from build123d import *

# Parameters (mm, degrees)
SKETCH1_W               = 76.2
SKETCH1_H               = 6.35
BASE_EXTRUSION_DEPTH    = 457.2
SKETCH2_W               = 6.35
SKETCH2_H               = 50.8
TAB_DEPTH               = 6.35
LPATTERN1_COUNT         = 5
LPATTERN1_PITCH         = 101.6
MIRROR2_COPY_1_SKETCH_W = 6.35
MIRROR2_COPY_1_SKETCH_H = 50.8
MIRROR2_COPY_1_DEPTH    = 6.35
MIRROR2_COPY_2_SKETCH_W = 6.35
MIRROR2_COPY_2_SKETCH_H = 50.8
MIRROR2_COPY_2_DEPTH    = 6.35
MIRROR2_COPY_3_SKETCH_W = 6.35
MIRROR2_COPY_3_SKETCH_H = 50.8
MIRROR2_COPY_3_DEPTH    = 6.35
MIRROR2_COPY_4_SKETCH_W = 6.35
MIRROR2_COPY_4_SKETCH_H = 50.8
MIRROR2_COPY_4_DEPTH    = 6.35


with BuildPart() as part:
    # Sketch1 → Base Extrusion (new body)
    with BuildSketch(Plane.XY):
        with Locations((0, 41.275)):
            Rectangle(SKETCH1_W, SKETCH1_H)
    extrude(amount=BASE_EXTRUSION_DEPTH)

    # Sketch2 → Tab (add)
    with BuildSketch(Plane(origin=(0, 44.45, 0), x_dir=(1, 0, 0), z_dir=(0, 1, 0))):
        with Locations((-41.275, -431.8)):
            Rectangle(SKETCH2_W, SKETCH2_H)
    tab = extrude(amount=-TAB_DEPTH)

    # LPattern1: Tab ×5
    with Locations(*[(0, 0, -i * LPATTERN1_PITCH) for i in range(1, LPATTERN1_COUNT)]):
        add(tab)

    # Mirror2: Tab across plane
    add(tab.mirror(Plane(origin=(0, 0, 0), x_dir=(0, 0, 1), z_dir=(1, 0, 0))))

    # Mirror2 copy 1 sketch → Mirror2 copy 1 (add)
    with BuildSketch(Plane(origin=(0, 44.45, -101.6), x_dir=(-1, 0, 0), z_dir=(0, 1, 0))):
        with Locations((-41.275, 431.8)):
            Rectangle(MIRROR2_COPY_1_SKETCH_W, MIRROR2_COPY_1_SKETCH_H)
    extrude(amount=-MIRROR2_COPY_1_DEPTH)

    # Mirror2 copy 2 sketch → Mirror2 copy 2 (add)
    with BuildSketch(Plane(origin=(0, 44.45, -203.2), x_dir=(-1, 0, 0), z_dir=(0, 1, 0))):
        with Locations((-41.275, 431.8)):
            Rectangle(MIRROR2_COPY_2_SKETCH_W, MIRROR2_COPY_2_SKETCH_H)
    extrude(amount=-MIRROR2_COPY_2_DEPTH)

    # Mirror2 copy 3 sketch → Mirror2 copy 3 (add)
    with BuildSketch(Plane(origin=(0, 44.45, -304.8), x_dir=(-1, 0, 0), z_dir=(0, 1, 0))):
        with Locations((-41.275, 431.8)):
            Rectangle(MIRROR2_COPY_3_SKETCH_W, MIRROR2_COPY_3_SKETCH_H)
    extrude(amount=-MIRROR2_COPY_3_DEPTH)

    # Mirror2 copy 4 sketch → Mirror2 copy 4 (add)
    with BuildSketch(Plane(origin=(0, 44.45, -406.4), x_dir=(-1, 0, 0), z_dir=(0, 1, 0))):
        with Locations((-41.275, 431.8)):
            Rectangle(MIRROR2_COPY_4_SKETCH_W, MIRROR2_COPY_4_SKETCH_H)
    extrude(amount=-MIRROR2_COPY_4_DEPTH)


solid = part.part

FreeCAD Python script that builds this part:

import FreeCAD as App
import Part
import Sketcher

V = App.Vector
Q = App.Units.Quantity


def add_polygon(sketch, points):
    """Adds a closed chain of lines whose ends are joined by coincident constraints."""
    first, n = sketch.GeometryCount, len(points)
    for a, b in zip(points, points[1:] + points[:1]):
        sketch.addGeometry(Part.LineSegment(App.Vector(*a, 0), App.Vector(*b, 0)), False)
    for i in range(n):
        sketch.addConstraint(Sketcher.Constraint("Coincident", first + i, 2, first + (i + 1) % n, 1))

doc = App.newDocument("Part")
body = doc.addObject("PartDesign::Body", "Body")

# Sketch on XY plane
sketch1 = body.newObject("Sketcher::SketchObject", "Sketch")
sketch1.AttachmentSupport = (doc.getObject("XY_Plane"), [""])
sketch1.MapMode = "FlatFace"
add_polygon(sketch1, [(-38, 44), (-38, 38), (38, 38), (38, 44)])  # lines 0-3
sketch1.addConstraint(Sketcher.Constraint("Vertical", 0))
sketch1.addConstraint(Sketcher.Constraint("Horizontal", 1))
sketch1.addConstraint(Sketcher.Constraint("Vertical", 2))
sketch1.addConstraint(Sketcher.Constraint("Horizontal", 3))
sketch1.addConstraint(Sketcher.Constraint("DistanceX", 1, 1, 1, 2, Q("3 in")))
sketch1.addConstraint(Sketcher.Constraint("DistanceY", 0, 2, 0, 1, Q("0.25 in")))
sketch1.addConstraint(Sketcher.Constraint("DistanceX", 0, 2, -1, 1, Q("1.5 in")))
sketch1.addConstraint(Sketcher.Constraint("DistanceY", -1, 1, 0, 2, Q("1.5 in")))
pad1 = body.newObject("PartDesign::Pad", "Pad")
pad1.Profile = sketch1
pad1.Length = Q("18 in")

# Sketch on XZ plane
sketch2 = body.newObject("Sketcher::SketchObject", "Sketch001")
sketch2.AttachmentSupport = (doc.getObject("XZ_Plane"), [""])
sketch2.MapMode = "FlatFace"
sketch2.AttachmentOffset = App.Placement(V(0, 0, -1.75 * 25.4), App.Rotation())
add_polygon(sketch2, [(-44, 406), (-44, 457), (-38, 457), (-38, 406)])  # lines 0-3
sketch2.addConstraint(Sketcher.Constraint("Vertical", 0))
sketch2.addConstraint(Sketcher.Constraint("Horizontal", 1))
sketch2.addConstraint(Sketcher.Constraint("Vertical", 2))
sketch2.addConstraint(Sketcher.Constraint("Horizontal", 3))
sketch2.addConstraint(Sketcher.Constraint("DistanceY", 0, 1, 0, 2, Q("2 in")))
sketch2.addConstraint(Sketcher.Constraint("DistanceY", -1, 1, 0, 2, Q("18 in")))
sketch2.addConstraint(Sketcher.Constraint("DistanceX", 1, 1, 1, 2, Q("0.25 in")))
sketch2.addConstraint(Sketcher.Constraint("DistanceX", 1, 2, -1, 1, Q("1.5 in")))
pad2 = body.newObject("PartDesign::Pad", "Pad001")
pad2.Profile = sketch2
pad2.Length = Q("0.25 in")
doc.recompute()

linearpattern = body.newObject("PartDesign::LinearPattern", "LinearPattern")
linearpattern.Originals = [pad2]
linearpattern.Direction = (doc.getObject("Z_Axis"), [""])
linearpattern.Mode = "offset"
linearpattern.Offset = Q("4 in")
linearpattern.Occurrences = 5
linearpattern.Reversed = True
body.Tip = linearpattern
doc.recompute()

mirrored = body.newObject("PartDesign::Mirrored", "Mirrored")
mirrored.Originals = [pad2]
mirrored.MirrorPlane = (doc.getObject("YZ_Plane"), [""])
body.Tip = mirrored

# Sketch on XZ plane
sketch3 = body.newObject("Sketcher::SketchObject", "Sketch002")
sketch3.AttachmentSupport = (doc.getObject("XZ_Plane"), [""])
sketch3.MapMode = "FlatFace"
sketch3.AttachmentOffset = App.Placement(V(0, 0, -1.75 * 25.4), App.Rotation())
add_polygon(sketch3, [(44, 356), (44, 305), (38, 305), (38, 356)])  # lines 0-3
sketch3.addConstraint(Sketcher.Constraint("Vertical", 0))
sketch3.addConstraint(Sketcher.Constraint("Horizontal", 1))
sketch3.addConstraint(Sketcher.Constraint("Vertical", 2))
sketch3.addConstraint(Sketcher.Constraint("Horizontal", 3))
sketch3.addConstraint(Sketcher.Constraint("DistanceY", 0, 2, 0, 1, Q("2 in")))
sketch3.addConstraint(Sketcher.Constraint("DistanceY", -1, 1, 0, 2, Q("12 in")))
sketch3.addConstraint(Sketcher.Constraint("DistanceX", 1, 2, 1, 1, Q("0.25 in")))
sketch3.addConstraint(Sketcher.Constraint("DistanceX", -1, 1, 1, 2, Q("1.5 in")))
pad3 = body.newObject("PartDesign::Pad", "Pad002")
pad3.Profile = sketch3
pad3.Length = Q("0.25 in")

# Sketch on XZ plane
sketch4 = body.newObject("Sketcher::SketchObject", "Sketch003")
sketch4.AttachmentSupport = (doc.getObject("XZ_Plane"), [""])
sketch4.MapMode = "FlatFace"
sketch4.AttachmentOffset = App.Placement(V(0, 0, -1.75 * 25.4), App.Rotation())
add_polygon(sketch4, [(44, 254), (44, 203), (38, 203), (38, 254)])  # lines 0-3
sketch4.addConstraint(Sketcher.Constraint("Vertical", 0))
sketch4.addConstraint(Sketcher.Constraint("Horizontal", 1))
sketch4.addConstraint(Sketcher.Constraint("Vertical", 2))
sketch4.addConstraint(Sketcher.Constraint("Horizontal", 3))
sketch4.addConstraint(Sketcher.Constraint("DistanceY", 0, 2, 0, 1, Q("2 in")))
sketch4.addConstraint(Sketcher.Constraint("DistanceY", -1, 1, 0, 2, Q("8 in")))
sketch4.addConstraint(Sketcher.Constraint("DistanceX", 1, 2, 1, 1, Q("0.25 in")))
sketch4.addConstraint(Sketcher.Constraint("DistanceX", -1, 1, 1, 2, Q("1.5 in")))
pad4 = body.newObject("PartDesign::Pad", "Pad003")
pad4.Profile = sketch4
pad4.Length = Q("0.25 in")

# Sketch on XZ plane
sketch5 = body.newObject("Sketcher::SketchObject", "Sketch004")
sketch5.AttachmentSupport = (doc.getObject("XZ_Plane"), [""])
sketch5.MapMode = "FlatFace"
sketch5.AttachmentOffset = App.Placement(V(0, 0, -1.75 * 25.4), App.Rotation())
add_polygon(sketch5, [(44, 152), (44, 102), (38, 102), (38, 152)])  # lines 0-3
sketch5.addConstraint(Sketcher.Constraint("Vertical", 0))
sketch5.addConstraint(Sketcher.Constraint("Horizontal", 1))
sketch5.addConstraint(Sketcher.Constraint("Vertical", 2))
sketch5.addConstraint(Sketcher.Constraint("Horizontal", 3))
sketch5.addConstraint(Sketcher.Constraint("DistanceY", 0, 2, 0, 1, Q("2 in")))
sketch5.addConstraint(Sketcher.Constraint("DistanceY", -1, 1, 0, 2, Q("4 in")))
sketch5.addConstraint(Sketcher.Constraint("DistanceX", 1, 2, 1, 1, Q("0.25 in")))
sketch5.addConstraint(Sketcher.Constraint("DistanceX", -1, 1, 1, 2, Q("1.5 in")))
pad5 = body.newObject("PartDesign::Pad", "Pad004")
pad5.Profile = sketch5
pad5.Length = Q("0.25 in")

# Sketch on XZ plane
sketch6 = body.newObject("Sketcher::SketchObject", "Sketch005")
sketch6.AttachmentSupport = (doc.getObject("XZ_Plane"), [""])
sketch6.MapMode = "FlatFace"
sketch6.AttachmentOffset = App.Placement(V(0, 0, -1.75 * 25.4), App.Rotation())
add_polygon(sketch6, [(44, 51), (44, 0), (38, 0), (38, 51)])  # lines 0-3
sketch6.addConstraint(Sketcher.Constraint("Vertical", 0))
sketch6.addConstraint(Sketcher.Constraint("Horizontal", 1))
sketch6.addConstraint(Sketcher.Constraint("Vertical", 2))
sketch6.addConstraint(Sketcher.Constraint("Horizontal", 3))
sketch6.addConstraint(Sketcher.Constraint("PointOnObject", 0, 2, -1))
sketch6.addConstraint(Sketcher.Constraint("DistanceY", 0, 2, 0, 1, Q("2 in")))
sketch6.addConstraint(Sketcher.Constraint("DistanceX", 1, 2, 1, 1, Q("0.25 in")))
sketch6.addConstraint(Sketcher.Constraint("DistanceX", -1, 1, 1, 2, Q("1.5 in")))
pad6 = body.newObject("PartDesign::Pad", "Pad005")
pad6.Profile = sketch6
pad6.Length = Q("0.25 in")

doc.recompute()
